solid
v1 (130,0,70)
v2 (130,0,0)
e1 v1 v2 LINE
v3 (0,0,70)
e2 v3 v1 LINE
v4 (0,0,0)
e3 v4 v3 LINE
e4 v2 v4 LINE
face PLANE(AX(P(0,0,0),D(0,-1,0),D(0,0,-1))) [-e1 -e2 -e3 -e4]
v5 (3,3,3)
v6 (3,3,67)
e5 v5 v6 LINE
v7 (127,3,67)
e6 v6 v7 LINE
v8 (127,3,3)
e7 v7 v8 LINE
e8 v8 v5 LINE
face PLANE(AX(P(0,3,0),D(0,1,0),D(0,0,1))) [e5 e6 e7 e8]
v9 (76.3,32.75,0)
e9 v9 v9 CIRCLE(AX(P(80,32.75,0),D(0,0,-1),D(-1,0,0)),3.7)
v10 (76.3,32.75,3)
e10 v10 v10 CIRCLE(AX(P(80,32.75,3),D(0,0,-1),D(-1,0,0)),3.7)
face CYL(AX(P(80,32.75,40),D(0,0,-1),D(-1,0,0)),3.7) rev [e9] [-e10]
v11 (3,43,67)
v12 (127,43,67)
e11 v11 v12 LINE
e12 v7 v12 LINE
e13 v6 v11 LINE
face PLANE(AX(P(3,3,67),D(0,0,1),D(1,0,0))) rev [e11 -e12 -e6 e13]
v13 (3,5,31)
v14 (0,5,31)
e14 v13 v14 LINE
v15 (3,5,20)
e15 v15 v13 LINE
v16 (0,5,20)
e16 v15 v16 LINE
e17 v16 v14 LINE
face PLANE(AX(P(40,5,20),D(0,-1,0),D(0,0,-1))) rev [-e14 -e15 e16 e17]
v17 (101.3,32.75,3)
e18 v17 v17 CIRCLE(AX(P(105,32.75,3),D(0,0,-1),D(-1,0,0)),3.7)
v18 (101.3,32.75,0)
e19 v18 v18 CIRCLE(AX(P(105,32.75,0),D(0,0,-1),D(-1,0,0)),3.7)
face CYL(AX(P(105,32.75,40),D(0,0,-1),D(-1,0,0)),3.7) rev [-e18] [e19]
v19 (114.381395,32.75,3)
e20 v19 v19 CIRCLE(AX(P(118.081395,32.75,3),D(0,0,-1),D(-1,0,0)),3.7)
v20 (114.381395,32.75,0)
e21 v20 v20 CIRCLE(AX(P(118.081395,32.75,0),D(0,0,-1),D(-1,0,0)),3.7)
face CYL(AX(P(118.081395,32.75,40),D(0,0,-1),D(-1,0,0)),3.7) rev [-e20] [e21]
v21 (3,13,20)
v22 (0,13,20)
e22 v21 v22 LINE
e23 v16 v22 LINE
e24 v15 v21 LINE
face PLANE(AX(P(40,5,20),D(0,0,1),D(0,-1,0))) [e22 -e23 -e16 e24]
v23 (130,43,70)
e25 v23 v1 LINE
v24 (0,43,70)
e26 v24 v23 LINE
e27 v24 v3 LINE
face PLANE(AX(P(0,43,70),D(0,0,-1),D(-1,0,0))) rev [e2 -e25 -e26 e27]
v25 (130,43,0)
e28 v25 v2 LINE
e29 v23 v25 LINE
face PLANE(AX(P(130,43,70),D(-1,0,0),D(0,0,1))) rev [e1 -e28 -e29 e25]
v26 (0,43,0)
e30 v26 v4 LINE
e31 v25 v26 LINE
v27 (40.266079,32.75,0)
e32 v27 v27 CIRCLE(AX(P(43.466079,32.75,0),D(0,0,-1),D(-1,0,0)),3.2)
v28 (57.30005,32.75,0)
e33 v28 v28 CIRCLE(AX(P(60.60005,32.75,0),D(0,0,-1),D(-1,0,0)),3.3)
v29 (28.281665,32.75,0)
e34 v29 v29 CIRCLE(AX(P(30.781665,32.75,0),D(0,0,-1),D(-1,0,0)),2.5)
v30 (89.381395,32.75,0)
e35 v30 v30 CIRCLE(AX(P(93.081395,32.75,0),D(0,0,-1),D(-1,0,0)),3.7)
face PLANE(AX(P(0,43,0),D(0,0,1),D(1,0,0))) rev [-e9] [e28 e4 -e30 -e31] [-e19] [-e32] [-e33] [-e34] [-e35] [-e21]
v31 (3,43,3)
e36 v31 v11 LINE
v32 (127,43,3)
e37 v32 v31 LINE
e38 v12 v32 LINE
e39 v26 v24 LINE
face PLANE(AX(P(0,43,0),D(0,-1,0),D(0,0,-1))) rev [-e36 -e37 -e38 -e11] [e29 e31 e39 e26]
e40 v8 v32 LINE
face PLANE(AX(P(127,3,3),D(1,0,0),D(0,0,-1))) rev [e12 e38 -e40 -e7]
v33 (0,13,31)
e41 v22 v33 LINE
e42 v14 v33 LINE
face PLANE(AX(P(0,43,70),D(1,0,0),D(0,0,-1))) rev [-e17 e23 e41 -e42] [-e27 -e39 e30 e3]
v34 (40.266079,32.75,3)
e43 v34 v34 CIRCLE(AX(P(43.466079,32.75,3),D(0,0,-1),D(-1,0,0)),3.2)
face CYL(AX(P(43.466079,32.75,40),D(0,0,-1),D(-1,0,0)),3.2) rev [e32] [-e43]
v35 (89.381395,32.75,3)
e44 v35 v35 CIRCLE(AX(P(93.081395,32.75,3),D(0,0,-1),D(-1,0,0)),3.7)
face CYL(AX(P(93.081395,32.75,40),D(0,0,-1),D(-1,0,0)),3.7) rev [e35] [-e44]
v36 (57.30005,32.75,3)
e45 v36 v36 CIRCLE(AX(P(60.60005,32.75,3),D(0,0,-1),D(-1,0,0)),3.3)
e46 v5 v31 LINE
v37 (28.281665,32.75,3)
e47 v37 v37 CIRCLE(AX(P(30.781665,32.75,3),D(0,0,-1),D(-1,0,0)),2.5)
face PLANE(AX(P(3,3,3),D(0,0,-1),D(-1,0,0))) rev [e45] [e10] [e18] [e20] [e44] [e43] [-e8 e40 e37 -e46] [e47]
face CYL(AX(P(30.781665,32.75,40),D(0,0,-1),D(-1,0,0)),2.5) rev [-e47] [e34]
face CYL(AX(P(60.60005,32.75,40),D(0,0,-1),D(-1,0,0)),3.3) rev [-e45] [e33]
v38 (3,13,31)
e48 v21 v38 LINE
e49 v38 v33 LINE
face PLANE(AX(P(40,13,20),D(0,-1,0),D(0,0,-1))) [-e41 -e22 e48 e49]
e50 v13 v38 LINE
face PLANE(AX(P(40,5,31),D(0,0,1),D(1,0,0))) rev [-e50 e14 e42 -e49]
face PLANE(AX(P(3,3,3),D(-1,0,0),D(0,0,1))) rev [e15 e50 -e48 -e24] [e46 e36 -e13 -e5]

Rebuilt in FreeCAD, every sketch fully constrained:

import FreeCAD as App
import Part
import Sketcher
from FreeCAD import Vector
Q = App.Units.Quantity

doc = App.newDocument("Part")
params = doc.addObject("Spreadsheet::Sheet", "Params")
for row, (alias, value) in enumerate([
    ("sketch1_width", "130 mm"),
    ("sketch1_height", "70 mm"),
    ("pad1_length", "43 mm"),
    ("sketch2_width", "124 mm"),
    ("sketch2_height", "64 mm"),
    ("pocket1_length", "40 mm"),
    ("sketch3_diameter", "7.4 mm"),
    ("pocket2_length", "40 mm"),
    ("sketch4_diameter", "5 mm"),
    ("sketch4_diameter2", "6.6 mm"),
    ("sketch4_diameter3", "6.4 mm"),
    ("pocket3_length", "40 mm"),
    ("sketch5_width", "8 mm"),
    ("sketch5_height", "11 mm"),
    ("pocket4_length", "40 mm"),
], start=1):
    params.set(f"A{row}", alias)
    params.set(f"B{row}", "=" + value)
    params.setAlias(f"B{row}", alias)

body = doc.addObject("PartDesign::Body", "Body")

sketch1 = body.newObject("Sketcher::SketchObject", "Sketch")
sketch1.AttachmentSupport = (doc.getObject("XZ_Plane"), [""])
sketch1.MapMode = "FlatFace"
sketch1.addGeometry([
    Part.LineSegment(Vector(0, 0, 0), Vector(0, 70, 0)),
    Part.LineSegment(Vector(0, 70, 0), Vector(130, 70, 0)),
    Part.LineSegment(Vector(130, 70, 0), Vector(130, 0, 0)),
    Part.LineSegment(Vector(130, 0, 0), Vector(0, 0, 0)),
], False)
sketch1.addConstraint([
    Sketcher.Constraint("Coincident", 0, 2, 1, 1),
    Sketcher.Constraint("Coincident", 1, 2, 2, 1),
    Sketcher.Constraint("Coincident", 2, 2, 3, 1),
    Sketcher.Constraint("Coincident", 3, 2, 0, 1),
    Sketcher.Constraint("Vertical", 0),
    Sketcher.Constraint("Horizontal", 1),
    Sketcher.Constraint("Vertical", 2),
    Sketcher.Constraint("Horizontal", 3),
    Sketcher.Constraint("Coincident", 3, 2, -1, 1),
    Sketcher.Constraint("DistanceX", 1, 1, 1, 2, Q("130 mm")),
    Sketcher.Constraint("DistanceY", 0, 1, 0, 2, Q("70 mm")),
])
sketch1.setExpression("Constraints[9]", "Params.sketch1_width")
sketch1.setExpression("Constraints[10]", "Params.sketch1_height")
pad1 = body.newObject("PartDesign::Pad", "Pad")
pad1.Profile = sketch1
pad1.setExpression("Length", "Params.pad1_length")
pad1.Reversed = True

sketch2 = body.newObject("Sketcher::SketchObject", "Sketch001")
sketch2.AttachmentSupport = (doc.getObject("XZ_Plane"), [""])
sketch2.MapMode = "FlatFace"
sketch2.AttachmentOffset = App.Placement(Vector(0, 0, -43), App.Rotation())
sketch2.addGeometry([
    Part.LineSegment(Vector(3, 3, 0), Vector(3, 67, 0)),
    Part.LineSegment(Vector(3, 67, 0), Vector(127, 67, 0)),
    Part.LineSegment(Vector(127, 67, 0), Vector(127, 3, 0)),
    Part.LineSegment(Vector(127, 3, 0), Vector(3, 3, 0)),
], False)
sketch2.addConstraint([
    Sketcher.Constraint("Coincident", 0, 2, 1, 1),
    Sketcher.Constraint("Coincident", 1, 2, 2, 1),
    Sketcher.Constraint("Coincident", 2, 2, 3, 1),
    Sketcher.Constraint("Coincident", 3, 2, 0, 1),
    Sketcher.Constraint("Vertical", 0),
    Sketcher.Constraint("Horizontal", 1),
    Sketcher.Constraint("Vertical", 2),
    Sketcher.Constraint("Horizontal", 3),
    Sketcher.Constraint("DistanceX", 1, 1, 1, 2, Q("124 mm")),
    Sketcher.Constraint("DistanceY", 0, 1, 0, 2, Q("64 mm")),
    Sketcher.Constraint("DistanceX", -1, 1, 0, 2, Q("3 mm")),
    Sketcher.Constraint("DistanceY", -1, 1, 0, 2, Q("67 mm")),
])
sketch2.setExpression("Constraints[8]", "Params.sketch2_width")
sketch2.setExpression("Constraints[9]", "Params.sketch2_height")
pocket1 = body.newObject("PartDesign::Pocket", "Pocket")
pocket1.Profile = sketch2
pocket1.setExpression("Length", "Params.pocket1_length")
pocket1.Reversed = True

sketch3 = body.newObject("Sketcher::SketchObject", "Sketch002")
sketch3.AttachmentSupport = (doc.getObject("XY_Plane"), [""])
sketch3.MapMode = "FlatFace"
sketch3.addGeometry([
    Part.Circle(Vector(105, 32.75, 0), Vector(0, 0, 1), 3.7),
    Part.Circle(Vector(93.081395, 32.75, 0), Vector(0, 0, 1), 3.7),
    Part.Circle(Vector(80, 32.75, 0), Vector(0, 0, 1), 3.7),
    Part.Circle(Vector(118.081395, 32.75, 0), Vector(0, 0, 1), 3.7),
], False)
sketch3.addConstraint([
    Sketcher.Constraint("Equal", 0, 1),
    Sketcher.Constraint("Equal", 1, 2),
    Sketcher.Constraint("Equal", 2, 3),
    Sketcher.Constraint("Horizontal", 0, 3, 1, 3),
    Sketcher.Constraint("Horizontal", 1, 3, 2, 3),
    Sketcher.Constraint("Horizontal", 2, 3, 3, 3),
    Sketcher.Constraint("Diameter", 0, Q("7.4 mm")),
    Sketcher.Constraint("DistanceX", -1, 1, 0, 3, Q("105 mm")),
    Sketcher.Constraint("DistanceX", -1, 1, 2, 3, Q("80 mm")),
    Sketcher.Constraint("DistanceX", 1, 3, 3, 3, Q("25 mm")),
    Sketcher.Constraint("DistanceY", -1, 1, 0, 3, Q("32.75 mm")),
    Sketcher.Constraint("DistanceX", -1, 1, 1, 3, Q("93.081395 mm")),
])
sketch3.setExpression("Constraints[6]", "Params.sketch3_diameter")
pocket2 = body.newObject("PartDesign::Pocket", "Pocket001")
pocket2.Profile = sketch3
pocket2.setExpression("Length", "Params.pocket2_length")
pocket2.Reversed = True

sketch4 = body.newObject("Sketcher::SketchObject", "Sketch003")
sketch4.AttachmentSupport = (doc.getObject("XY_Plane"), [""])
sketch4.MapMode = "FlatFace"
sketch4.addGeometry([
    Part.Circle(Vector(60.60005, 32.75, 0), Vector(0, 0, 1), 3.3),
    Part.Circle(Vector(43.466079, 32.75, 0), Vector(0, 0, 1), 3.2),
    Part.Circle(Vector(30.781665, 32.75, 0), Vector(0, 0, 1), 2.5),
], False)
sketch4.addConstraint([
    Sketcher.Constraint("Horizontal", 0, 3, 1, 3),
    Sketcher.Constraint("Horizontal", 1, 3, 2, 3),
    Sketcher.Constraint("Diameter", 2, Q("5 mm")),
    Sketcher.Constraint("Diameter", 0, Q("6.6 mm")),
    Sketcher.Constraint("Diameter", 1, Q("6.4 mm")),
    Sketcher.Constraint("DistanceY", -1, 1, 0, 3, Q("32.75 mm")),
    Sketcher.Constraint("DistanceX", -1, 1, 0, 3, Q("60.60005 mm")),
    Sketcher.Constraint("DistanceX", -1, 1, 1, 3, Q("43.466079 mm")),
    Sketcher.Constraint("DistanceX", -1, 1, 2, 3, Q("30.781665 mm")),
])
sketch4.setExpression("Constraints[2]", "Params.sketch4_diameter")
sketch4.setExpression("Constraints[3]", "Params.sketch4_diameter2")
sketch4.setExpression("Constraints[4]", "Params.sketch4_diameter3")
pocket3 = body.newObject("PartDesign::Pocket", "Pocket002")
pocket3.Profile = sketch4
pocket3.setExpression("Length", "Params.pocket3_length")
pocket3.Reversed = True

sketch5 = body.newObject("Sketcher::SketchObject", "Sketch004")
sketch5.AttachmentSupport = (doc.getObject("YZ_Plane"), [""])
sketch5.MapMode = "FlatFace"
sketch5.addGeometry([
    Part.LineSegment(Vector(13, 20, 0), Vector(5, 20, 0)),
    Part.LineSegment(Vector(5, 20, 0), Vector(5, 31, 0)),
    Part.LineSegment(Vector(5, 31, 0), Vector(13, 31, 0)),
    Part.LineSegment(Vector(13, 31, 0), Vector(13, 20, 0)),
], False)
sketch5.addConstraint([
    Sketcher.Constraint("Coincident", 0, 2, 1, 1),
    Sketcher.Constraint("Coincident", 1, 2, 2, 1),
    Sketcher.Constraint("Coincident", 2, 2, 3, 1),
    Sketcher.Constraint("Coincident", 3, 2, 0, 1),
    Sketcher.Constraint("Horizontal", 0),
    Sketcher.Constraint("Vertical", 1),
    Sketcher.Constraint("Horizontal", 2),
    Sketcher.Constraint("Vertical", 3),
    Sketcher.Constraint("DistanceX", 0, 2, 0, 1, Q("8 mm")),
    Sketcher.Constraint("DistanceY", 1, 1, 1, 2, Q("11 mm")),
    Sketcher.Constraint("DistanceX", -1, 1, 0, 2, Q("5 mm")),
    Sketcher.Constraint("DistanceY", -1, 1, 0, 2, Q("20 mm")),
])
sketch5.setExpression("Constraints[8]", "Params.sketch5_width")
sketch5.setExpression("Constraints[9]", "Params.sketch5_height")
pocket4 = body.newObject("PartDesign::Pocket", "Pocket003")
pocket4.Profile = sketch5
pocket4.setExpression("Length", "Params.pocket4_length")
pocket4.Reversed = True

doc.recompute()
